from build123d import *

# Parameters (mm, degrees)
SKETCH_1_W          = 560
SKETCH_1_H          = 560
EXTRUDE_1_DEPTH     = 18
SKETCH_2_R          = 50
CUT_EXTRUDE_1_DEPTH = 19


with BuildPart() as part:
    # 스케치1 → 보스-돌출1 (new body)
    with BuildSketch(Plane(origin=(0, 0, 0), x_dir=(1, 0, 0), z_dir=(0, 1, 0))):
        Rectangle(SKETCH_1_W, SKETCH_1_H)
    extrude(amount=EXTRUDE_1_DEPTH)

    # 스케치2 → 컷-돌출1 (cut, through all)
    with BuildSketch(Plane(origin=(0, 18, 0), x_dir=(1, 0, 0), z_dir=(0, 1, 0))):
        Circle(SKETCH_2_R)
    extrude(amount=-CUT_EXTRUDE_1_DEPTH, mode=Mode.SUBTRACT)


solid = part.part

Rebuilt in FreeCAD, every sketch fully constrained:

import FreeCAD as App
import Part
import Sketcher
from FreeCAD import Vector
Q = App.Units.Quantity

doc = App.newDocument("Part")
body = doc.addObject("PartDesign::Body", "Body")

# Sketch on XZ plane
sketch1 = body.newObject("Sketcher::SketchObject", "Sketch")
sketch1.AttachmentSupport = (doc.getObject("XZ_Plane"), [""])
sketch1.MapMode = "FlatFace"
sketch1.addGeometry([
    Part.LineSegment(Vector(-280, -280, 0), Vector(-280, 280, 0)),
    Part.LineSegment(Vector(-280, 280, 0), Vector(280, 280, 0)),
    Part.LineSegment(Vector(280, 280, 0), Vector(280, -280, 0)),
    Part.LineSegment(Vector(280, -280, 0), Vector(-280, -280, 0)),
], False)
sketch1.addConstraint([
    Sketcher.Constraint("Coincident", 0, 2, 1, 1),
    Sketcher.Constraint("Coincident", 1, 2, 2, 1),
    Sketcher.Constraint("Coincident", 2, 2, 3, 1),
    Sketcher.Constraint("Coincident", 3, 2, 0, 1),
    Sketcher.Constraint("Vertical", 0),
    Sketcher.Constraint("Horizontal", 1),
    Sketcher.Constraint("Vertical", 2),
    Sketcher.Constraint("Horizontal", 3),
    Sketcher.Constraint("Symmetric", 0, 2, 2, 2, -1, 1),
    Sketcher.Constraint("Equal", 3, 0),
    Sketcher.Constraint("DistanceX", 1, 1, 1, 2, Q("560 mm")),
])
pad1 = body.newObject("PartDesign::Pad", "Pad")
pad1.Profile = sketch1
pad1.Length = 18
pad1.Reversed = True

# Sketch on XZ plane
sketch2 = body.newObject("Sketcher::SketchObject", "Sketch001")
sketch2.AttachmentSupport = (doc.getObject("XZ_Plane"), [""])
sketch2.MapMode = "FlatFace"
sketch2.AttachmentOffset = App.Placement(Vector(0, 0, -18), App.Rotation())
sketch2.addGeometry(Part.Circle(Vector(0, 0, 0), Vector(0, 0, 1), 50), False)
sketch2.addConstraint([
    Sketcher.Constraint("Coincident", 0, 3, -1, 1),
    Sketcher.Constraint("Diameter", 0, Q("100 mm")),
])
pocket1 = body.newObject("PartDesign::Pocket", "Pocket")
pocket1.Profile = sketch2
pocket1.Type = "ThroughAll"
pocket1.Reversed = True

doc.recompute()
